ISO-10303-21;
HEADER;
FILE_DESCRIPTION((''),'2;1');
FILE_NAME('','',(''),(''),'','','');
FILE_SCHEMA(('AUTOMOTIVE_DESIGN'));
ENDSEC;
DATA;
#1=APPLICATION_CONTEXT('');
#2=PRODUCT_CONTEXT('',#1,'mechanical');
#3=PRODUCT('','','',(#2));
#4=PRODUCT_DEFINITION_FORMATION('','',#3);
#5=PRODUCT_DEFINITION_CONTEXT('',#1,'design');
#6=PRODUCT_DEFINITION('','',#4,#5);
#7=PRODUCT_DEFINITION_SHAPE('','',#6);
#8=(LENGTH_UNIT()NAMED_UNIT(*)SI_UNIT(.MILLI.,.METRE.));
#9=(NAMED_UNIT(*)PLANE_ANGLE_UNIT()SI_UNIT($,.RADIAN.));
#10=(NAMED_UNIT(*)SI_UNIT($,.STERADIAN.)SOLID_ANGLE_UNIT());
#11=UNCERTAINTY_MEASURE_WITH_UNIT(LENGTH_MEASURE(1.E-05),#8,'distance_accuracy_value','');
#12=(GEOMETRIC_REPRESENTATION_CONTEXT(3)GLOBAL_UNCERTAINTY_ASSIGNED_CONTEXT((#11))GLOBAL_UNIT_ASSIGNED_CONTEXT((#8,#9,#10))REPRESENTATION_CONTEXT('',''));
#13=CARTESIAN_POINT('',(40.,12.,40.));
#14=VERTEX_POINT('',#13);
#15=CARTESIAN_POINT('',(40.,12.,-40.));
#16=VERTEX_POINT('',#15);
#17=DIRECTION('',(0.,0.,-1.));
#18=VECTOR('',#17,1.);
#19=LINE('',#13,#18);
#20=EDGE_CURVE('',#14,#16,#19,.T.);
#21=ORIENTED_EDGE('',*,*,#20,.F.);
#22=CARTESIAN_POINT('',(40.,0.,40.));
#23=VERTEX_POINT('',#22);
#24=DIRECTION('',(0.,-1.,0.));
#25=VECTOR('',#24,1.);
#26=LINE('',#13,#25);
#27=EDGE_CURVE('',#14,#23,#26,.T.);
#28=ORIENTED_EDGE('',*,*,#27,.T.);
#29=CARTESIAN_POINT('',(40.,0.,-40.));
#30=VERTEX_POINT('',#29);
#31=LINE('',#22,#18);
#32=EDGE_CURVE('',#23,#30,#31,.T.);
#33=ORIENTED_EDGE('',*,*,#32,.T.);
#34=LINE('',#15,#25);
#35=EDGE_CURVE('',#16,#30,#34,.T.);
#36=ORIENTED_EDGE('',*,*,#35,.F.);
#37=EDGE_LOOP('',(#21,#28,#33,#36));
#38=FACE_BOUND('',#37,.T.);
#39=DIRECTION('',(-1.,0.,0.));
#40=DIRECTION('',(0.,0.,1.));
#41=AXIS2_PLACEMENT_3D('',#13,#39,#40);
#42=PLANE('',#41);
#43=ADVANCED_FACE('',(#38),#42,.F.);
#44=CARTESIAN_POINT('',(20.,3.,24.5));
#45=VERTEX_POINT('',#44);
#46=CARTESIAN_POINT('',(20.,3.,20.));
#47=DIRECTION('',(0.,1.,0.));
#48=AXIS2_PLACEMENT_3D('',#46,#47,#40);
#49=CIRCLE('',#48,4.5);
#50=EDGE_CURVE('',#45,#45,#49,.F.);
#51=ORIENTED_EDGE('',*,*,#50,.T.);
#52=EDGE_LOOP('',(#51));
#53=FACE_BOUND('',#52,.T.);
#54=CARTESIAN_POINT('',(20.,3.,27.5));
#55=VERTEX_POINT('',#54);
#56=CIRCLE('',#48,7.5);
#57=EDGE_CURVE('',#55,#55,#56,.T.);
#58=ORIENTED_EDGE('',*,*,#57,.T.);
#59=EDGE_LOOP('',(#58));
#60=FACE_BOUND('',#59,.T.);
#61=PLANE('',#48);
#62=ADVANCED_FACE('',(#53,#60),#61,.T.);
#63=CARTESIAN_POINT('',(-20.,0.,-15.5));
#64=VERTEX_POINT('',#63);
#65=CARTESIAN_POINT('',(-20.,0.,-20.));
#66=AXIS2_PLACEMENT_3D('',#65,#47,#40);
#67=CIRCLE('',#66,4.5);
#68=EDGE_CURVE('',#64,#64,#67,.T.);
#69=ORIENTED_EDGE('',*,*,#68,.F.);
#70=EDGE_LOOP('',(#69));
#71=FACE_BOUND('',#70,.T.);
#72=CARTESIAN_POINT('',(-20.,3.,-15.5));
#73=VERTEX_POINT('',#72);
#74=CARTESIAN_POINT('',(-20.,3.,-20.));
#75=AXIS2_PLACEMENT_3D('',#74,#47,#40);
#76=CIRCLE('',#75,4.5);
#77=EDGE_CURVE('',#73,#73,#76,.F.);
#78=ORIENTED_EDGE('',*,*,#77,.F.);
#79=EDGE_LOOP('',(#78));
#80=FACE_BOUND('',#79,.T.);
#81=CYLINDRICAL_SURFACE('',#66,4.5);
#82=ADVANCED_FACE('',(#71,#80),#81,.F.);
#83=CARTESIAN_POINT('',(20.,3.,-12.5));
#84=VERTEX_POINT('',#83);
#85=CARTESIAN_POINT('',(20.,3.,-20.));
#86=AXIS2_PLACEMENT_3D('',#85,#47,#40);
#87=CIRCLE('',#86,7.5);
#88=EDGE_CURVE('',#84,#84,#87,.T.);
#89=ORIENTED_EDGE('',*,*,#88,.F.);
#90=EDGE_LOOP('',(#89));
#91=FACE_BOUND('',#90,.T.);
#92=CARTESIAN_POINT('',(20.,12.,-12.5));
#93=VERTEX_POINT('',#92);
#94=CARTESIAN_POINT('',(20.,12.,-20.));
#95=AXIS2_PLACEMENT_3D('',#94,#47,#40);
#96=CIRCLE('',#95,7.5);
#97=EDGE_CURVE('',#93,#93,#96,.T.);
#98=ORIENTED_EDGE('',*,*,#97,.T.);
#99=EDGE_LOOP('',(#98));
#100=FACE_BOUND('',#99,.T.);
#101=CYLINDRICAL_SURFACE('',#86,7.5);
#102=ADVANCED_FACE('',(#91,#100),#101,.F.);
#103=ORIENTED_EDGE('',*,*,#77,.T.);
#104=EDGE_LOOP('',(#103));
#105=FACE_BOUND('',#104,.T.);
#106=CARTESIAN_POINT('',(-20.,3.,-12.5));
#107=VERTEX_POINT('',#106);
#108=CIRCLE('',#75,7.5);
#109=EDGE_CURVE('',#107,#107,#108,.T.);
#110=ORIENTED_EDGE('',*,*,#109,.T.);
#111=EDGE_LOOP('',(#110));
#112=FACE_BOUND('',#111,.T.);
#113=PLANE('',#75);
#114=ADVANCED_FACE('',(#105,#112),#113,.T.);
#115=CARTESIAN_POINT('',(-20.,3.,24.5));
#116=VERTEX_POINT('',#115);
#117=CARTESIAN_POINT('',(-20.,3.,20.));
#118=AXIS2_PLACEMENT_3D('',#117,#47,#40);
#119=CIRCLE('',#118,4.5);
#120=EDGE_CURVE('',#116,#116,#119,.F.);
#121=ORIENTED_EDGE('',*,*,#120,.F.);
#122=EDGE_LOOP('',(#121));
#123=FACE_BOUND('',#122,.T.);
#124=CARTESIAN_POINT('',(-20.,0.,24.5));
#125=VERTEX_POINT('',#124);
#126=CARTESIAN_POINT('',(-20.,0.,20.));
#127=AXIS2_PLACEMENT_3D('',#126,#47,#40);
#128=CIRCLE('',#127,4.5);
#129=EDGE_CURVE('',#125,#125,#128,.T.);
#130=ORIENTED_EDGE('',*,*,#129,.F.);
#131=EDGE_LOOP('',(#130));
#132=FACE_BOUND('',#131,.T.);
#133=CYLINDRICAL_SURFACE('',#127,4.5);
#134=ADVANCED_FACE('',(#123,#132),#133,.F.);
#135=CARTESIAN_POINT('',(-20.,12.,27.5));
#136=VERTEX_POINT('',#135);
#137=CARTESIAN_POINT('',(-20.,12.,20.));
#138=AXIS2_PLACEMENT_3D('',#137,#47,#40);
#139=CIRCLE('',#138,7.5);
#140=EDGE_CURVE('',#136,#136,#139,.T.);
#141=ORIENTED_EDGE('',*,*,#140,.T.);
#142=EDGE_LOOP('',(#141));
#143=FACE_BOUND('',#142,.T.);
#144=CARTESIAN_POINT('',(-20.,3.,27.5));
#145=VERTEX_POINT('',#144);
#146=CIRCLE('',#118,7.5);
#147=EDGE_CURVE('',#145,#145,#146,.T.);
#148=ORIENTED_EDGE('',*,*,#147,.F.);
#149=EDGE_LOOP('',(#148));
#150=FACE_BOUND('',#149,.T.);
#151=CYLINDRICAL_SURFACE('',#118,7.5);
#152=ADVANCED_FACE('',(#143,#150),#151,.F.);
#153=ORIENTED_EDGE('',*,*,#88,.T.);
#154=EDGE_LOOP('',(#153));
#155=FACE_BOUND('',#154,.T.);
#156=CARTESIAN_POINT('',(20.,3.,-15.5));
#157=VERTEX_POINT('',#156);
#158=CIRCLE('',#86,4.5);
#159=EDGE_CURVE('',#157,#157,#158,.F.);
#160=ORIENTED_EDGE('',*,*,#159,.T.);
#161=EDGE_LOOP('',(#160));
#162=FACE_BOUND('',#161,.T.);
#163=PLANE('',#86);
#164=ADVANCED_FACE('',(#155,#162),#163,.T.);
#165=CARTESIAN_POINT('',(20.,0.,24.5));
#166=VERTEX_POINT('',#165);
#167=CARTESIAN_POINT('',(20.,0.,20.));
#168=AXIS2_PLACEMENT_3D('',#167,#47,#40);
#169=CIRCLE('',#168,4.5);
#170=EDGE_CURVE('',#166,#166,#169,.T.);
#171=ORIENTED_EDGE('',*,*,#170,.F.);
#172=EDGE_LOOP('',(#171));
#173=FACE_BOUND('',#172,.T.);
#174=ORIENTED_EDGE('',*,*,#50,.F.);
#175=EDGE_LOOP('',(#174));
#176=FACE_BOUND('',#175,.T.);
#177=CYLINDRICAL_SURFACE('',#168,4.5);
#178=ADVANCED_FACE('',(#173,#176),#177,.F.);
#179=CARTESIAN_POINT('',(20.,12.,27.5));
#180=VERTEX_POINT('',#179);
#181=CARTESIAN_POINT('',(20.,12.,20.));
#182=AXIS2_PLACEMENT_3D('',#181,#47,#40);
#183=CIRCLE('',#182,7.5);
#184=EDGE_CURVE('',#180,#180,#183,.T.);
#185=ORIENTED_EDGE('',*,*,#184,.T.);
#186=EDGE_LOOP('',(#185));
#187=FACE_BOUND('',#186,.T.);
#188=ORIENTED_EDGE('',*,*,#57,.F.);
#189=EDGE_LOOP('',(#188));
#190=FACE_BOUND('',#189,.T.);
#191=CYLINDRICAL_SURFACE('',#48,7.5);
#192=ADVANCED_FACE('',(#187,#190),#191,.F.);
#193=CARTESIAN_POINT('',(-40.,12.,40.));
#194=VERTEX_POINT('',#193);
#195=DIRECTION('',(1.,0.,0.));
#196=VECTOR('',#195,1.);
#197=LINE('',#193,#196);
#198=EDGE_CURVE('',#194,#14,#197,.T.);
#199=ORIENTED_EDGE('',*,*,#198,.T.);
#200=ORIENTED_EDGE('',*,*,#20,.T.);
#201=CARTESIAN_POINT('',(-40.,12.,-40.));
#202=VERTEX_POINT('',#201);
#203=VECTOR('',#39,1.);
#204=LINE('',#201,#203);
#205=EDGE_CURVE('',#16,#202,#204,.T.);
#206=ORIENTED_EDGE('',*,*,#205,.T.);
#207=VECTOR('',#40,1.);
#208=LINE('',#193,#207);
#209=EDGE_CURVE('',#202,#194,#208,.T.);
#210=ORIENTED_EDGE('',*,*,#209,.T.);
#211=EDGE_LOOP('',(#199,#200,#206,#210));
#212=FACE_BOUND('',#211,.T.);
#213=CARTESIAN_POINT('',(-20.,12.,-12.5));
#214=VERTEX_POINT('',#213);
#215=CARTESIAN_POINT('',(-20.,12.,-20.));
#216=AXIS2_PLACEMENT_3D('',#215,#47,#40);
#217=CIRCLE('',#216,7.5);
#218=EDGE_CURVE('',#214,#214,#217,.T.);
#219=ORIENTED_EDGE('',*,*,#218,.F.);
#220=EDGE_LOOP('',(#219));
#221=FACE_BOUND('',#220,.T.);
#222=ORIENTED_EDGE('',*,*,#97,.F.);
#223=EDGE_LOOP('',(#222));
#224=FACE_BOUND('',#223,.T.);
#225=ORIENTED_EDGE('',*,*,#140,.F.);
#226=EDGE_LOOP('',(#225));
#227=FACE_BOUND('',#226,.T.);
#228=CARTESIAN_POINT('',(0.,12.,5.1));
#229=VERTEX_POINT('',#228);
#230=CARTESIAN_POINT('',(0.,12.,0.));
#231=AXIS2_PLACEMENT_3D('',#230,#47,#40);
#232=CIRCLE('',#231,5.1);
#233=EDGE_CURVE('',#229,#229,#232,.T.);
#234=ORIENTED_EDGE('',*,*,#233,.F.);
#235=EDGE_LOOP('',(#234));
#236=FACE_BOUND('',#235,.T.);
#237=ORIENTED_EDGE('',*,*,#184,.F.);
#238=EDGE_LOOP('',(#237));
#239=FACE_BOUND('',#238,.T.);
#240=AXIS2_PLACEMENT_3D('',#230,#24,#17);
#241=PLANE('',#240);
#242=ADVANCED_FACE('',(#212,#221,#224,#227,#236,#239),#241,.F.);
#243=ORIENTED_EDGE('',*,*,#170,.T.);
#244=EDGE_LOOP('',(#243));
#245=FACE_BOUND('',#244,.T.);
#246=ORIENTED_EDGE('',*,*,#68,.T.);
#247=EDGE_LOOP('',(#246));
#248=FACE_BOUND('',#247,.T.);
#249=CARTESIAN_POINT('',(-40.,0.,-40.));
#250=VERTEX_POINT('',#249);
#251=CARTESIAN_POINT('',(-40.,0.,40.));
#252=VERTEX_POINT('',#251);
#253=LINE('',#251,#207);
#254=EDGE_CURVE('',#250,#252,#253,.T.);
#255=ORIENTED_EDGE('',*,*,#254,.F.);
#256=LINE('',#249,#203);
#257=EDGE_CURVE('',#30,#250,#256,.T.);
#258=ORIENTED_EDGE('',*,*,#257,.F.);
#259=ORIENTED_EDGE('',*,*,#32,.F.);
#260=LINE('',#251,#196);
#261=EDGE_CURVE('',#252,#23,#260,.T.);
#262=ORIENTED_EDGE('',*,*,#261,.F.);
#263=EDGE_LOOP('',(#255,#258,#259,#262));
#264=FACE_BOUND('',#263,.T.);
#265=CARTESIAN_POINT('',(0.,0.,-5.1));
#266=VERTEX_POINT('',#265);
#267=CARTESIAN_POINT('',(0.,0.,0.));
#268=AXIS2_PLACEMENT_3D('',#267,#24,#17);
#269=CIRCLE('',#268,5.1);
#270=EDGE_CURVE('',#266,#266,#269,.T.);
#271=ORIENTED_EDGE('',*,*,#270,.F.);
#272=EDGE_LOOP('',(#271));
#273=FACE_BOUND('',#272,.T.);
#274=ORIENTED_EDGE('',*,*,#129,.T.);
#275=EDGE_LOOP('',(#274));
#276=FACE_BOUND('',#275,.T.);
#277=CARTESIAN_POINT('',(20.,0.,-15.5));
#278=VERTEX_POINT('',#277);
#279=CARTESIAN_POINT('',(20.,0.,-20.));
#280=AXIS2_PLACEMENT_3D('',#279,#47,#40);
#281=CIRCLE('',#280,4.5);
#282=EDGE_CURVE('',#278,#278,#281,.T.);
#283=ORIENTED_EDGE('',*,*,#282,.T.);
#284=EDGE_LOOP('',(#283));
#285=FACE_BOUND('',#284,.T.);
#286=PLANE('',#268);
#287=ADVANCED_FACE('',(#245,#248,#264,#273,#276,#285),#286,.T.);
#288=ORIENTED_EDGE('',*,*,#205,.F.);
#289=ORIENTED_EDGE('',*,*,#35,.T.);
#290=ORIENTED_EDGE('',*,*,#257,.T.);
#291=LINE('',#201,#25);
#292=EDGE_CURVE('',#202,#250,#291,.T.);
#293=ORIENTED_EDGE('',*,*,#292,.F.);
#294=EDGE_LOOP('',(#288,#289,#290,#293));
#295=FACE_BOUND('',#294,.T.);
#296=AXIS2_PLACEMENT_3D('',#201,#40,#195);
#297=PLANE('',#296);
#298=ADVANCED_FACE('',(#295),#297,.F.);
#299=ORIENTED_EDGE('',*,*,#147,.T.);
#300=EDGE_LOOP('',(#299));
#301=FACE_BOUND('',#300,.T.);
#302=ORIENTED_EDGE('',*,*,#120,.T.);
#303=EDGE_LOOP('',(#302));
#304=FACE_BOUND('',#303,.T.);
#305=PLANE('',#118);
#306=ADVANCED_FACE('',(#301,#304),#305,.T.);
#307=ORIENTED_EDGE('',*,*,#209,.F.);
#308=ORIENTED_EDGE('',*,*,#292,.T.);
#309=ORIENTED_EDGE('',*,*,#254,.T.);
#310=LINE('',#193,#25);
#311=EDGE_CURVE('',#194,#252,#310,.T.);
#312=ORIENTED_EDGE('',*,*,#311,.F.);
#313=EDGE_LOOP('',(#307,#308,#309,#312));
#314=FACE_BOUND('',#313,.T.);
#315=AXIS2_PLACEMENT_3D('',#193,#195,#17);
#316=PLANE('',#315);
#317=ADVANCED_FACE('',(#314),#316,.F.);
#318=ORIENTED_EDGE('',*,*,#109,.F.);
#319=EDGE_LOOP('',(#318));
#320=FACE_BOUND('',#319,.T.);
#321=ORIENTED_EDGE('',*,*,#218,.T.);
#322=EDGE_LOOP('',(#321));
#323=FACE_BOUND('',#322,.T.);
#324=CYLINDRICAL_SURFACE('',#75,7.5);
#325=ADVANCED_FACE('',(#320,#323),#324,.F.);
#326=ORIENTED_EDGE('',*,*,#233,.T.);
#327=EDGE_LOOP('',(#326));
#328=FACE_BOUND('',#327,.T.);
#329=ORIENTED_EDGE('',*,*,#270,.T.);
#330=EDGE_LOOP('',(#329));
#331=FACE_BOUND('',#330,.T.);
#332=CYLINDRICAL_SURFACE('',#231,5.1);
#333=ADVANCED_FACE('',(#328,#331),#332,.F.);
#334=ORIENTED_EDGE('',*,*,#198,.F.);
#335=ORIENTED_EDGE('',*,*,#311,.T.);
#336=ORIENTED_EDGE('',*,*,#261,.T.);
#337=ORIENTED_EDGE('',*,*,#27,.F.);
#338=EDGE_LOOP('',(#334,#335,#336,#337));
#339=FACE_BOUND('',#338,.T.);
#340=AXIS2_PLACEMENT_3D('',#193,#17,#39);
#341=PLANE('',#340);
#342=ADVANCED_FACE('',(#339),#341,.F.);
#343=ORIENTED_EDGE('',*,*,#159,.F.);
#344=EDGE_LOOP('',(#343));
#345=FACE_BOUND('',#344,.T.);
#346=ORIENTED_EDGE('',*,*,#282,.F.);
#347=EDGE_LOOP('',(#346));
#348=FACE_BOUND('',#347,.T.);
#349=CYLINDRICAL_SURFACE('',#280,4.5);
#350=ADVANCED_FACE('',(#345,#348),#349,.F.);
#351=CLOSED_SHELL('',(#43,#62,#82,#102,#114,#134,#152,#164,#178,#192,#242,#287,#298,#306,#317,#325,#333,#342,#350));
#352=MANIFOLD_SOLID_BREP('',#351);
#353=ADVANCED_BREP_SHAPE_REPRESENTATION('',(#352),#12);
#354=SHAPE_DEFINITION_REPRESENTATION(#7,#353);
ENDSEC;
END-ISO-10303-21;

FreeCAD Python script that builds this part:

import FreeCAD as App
import Part
import Sketcher
from FreeCAD import Vector


def add_polygon(sketch, points):
    """Adds a closed chain of lines whose ends are joined by coincident constraints."""
    first, n = sketch.GeometryCount, len(points)
    for a, b in zip(points, points[1:] + points[:1]):
        sketch.addGeometry(Part.LineSegment(App.Vector(*a, 0), App.Vector(*b, 0)), False)
    for i in range(n):
        sketch.addConstraint(Sketcher.Constraint("Coincident", first + i, 2, first + (i + 1) % n, 1))

doc = App.newDocument("Part")
body = doc.addObject("PartDesign::Body", "Body")

sketch1 = body.newObject("Sketcher::SketchObject", "Sketch")
sketch1.AttachmentSupport = (doc.getObject("XZ_Plane"), [""])
sketch1.MapMode = "FlatFace"
add_polygon(sketch1, [(-40, -40), (-40, 40), (40, 40), (40, -40)])
sketch1.addConstraint([
    Sketcher.Constraint("Vertical", 0),
    Sketcher.Constraint("Horizontal", 1),
    Sketcher.Constraint("Vertical", 2),
    Sketcher.Constraint("Horizontal", 3),
    Sketcher.Constraint("Symmetric", 0, 2, 2, 2, -1, 1),
    Sketcher.Constraint("Equal", 3, 0),
    Sketcher.Constraint("DistanceX", 1, 1, 1, 2, 80.0),
])
pad1 = body.newObject("PartDesign::Pad", "Pad")
pad1.Profile = sketch1
pad1.Length = 12
pad1.Reversed = True

sketch2 = body.newObject("Sketcher::SketchObject", "Sketch001")
sketch2.AttachmentSupport = (doc.getObject("XZ_Plane"), [""])
sketch2.MapMode = "FlatFace"
sketch2.AttachmentOffset = App.Placement(Vector(0, 0, -12), App.Rotation())
sketch2.addGeometry(Part.Circle(Vector(0, 0, 0), Vector(0, 0, 1), 5.1), False)
sketch2.addConstraint([
    Sketcher.Constraint("Coincident", 0, 3, -1, 1),
    Sketcher.Constraint("Diameter", 0, 10.2),
])
doc.recompute()
hole = body.newObject("PartDesign::Hole", "Hole")
hole.Profile = sketch2
hole.ThreadType = "None"
hole.Diameter = 10.2
hole.DepthType = "Dimension"
hole.Depth = 12
hole.DrillPoint = "Flat"
hole.Reversed = True

sketch3 = body.newObject("Sketcher::SketchObject", "Sketch002")
sketch3.AttachmentSupport = (doc.getObject("XZ_Plane"), [""])
sketch3.MapMode = "FlatFace"
sketch3.AttachmentOffset = App.Placement(Vector(0, 0, -12), App.Rotation())
sketch3.addGeometry([
    Part.Circle(Vector(-20, -20, 0), Vector(0, 0, 1), 4.5),
    Part.Circle(Vector(20, -20, 0), Vector(0, 0, 1), 4.5),
    Part.Circle(Vector(20, 20, 0), Vector(0, 0, 1), 4.5),
    Part.Circle(Vector(-20, 20, 0), Vector(0, 0, 1), 4.5),
], False)
sketch3.addConstraint([
    Sketcher.Constraint("Equal", 0, 1),
    Sketcher.Constraint("Equal", 1, 2),
    Sketcher.Constraint("Equal", 2, 3),
    Sketcher.Constraint("Symmetric", 0, 3, 2, 3, -1, 1),
    Sketcher.Constraint("Symmetric", 1, 3, 3, 3, -1, 1),
    Sketcher.Constraint("Symmetric", 0, 3, 1, 3, -2),
    Sketcher.Constraint("Diameter", 0, 9.0),
    Sketcher.Constraint("DistanceX", 0, 3, -1, 1, 20.0),
    Sketcher.Constraint("DistanceY", 0, 3, -1, 1, 20.0),
])
pocket1 = body.newObject("PartDesign::Pocket", "Pocket")
pocket1.Profile = sketch3
pocket1.Type = "ThroughAll"
pocket1.Reversed = True

sketch4 = body.newObject("Sketcher::SketchObject", "Sketch003")
sketch4.AttachmentSupport = (doc.getObject("XZ_Plane"), [""])
sketch4.MapMode = "FlatFace"
sketch4.AttachmentOffset = App.Placement(Vector(0, 0, -12), App.Rotation())
sketch4.addGeometry([
    Part.Circle(Vector(-20, -20, 0), Vector(0, 0, 1), 7.5),
    Part.Circle(Vector(20, -20, 0), Vector(0, 0, 1), 7.5),
    Part.Circle(Vector(20, 20, 0), Vector(0, 0, 1), 7.5),
    Part.Circle(Vector(-20, 20, 0), Vector(0, 0, 1), 7.5),
], False)
sketch4.addConstraint([
    Sketcher.Constraint("Equal", 0, 1),
    Sketcher.Constraint("Equal", 1, 2),
    Sketcher.Constraint("Equal", 2, 3),
    Sketcher.Constraint("Symmetric", 0, 3, 2, 3, -1, 1),
    Sketcher.Constraint("Symmetric", 1, 3, 3, 3, -1, 1),
    Sketcher.Constraint("Symmetric", 0, 3, 1, 3, -2),
    Sketcher.Constraint("Diameter", 0, 15.0),
    Sketcher.Constraint("DistanceX", 0, 3, -1, 1, 20.0),
    Sketcher.Constraint("DistanceY", 0, 3, -1, 1, 20.0),
])
pocket2 = body.newObject("PartDesign::Pocket", "Pocket001")
pocket2.Profile = sketch4
pocket2.Length = 9
pocket2.Reversed = True

doc.recompute()
